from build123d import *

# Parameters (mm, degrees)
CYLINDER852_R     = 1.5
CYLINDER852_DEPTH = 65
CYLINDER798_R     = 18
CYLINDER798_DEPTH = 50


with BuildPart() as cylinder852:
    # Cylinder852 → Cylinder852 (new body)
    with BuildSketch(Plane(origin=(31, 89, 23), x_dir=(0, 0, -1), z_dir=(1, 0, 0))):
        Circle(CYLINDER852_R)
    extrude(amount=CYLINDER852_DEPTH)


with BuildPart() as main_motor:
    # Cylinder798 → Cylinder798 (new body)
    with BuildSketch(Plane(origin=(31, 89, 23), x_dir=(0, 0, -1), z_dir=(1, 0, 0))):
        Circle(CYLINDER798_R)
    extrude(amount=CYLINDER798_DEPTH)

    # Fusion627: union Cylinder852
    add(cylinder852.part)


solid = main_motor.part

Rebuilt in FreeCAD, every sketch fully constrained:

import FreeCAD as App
import Part
import Sketcher
from FreeCAD import Vector

doc = App.newDocument("Part")
body = doc.addObject("PartDesign::Body", "Body")

# Sketch on YZ plane
sketch1 = body.newObject("Sketcher::SketchObject", "Sketch")
sketch1.AttachmentSupport = (doc.getObject("YZ_Plane"), [""])
sketch1.MapMode = "FlatFace"
sketch1.AttachmentOffset = App.Placement(Vector(0, 0, 31), App.Rotation())
sketch1.addGeometry(Part.Circle(Vector(89, 23, 0), Vector(0, 0, 1), 1.5), False)
sketch1.addConstraint(Sketcher.Constraint("Diameter", 0, 3.0))
sketch1.addConstraint(Sketcher.Constraint("DistanceX", -1, 1, 0, 3, 89.0))
sketch1.addConstraint(Sketcher.Constraint("DistanceY", -1, 1, 0, 3, 23.0))
pad1 = body.newObject("PartDesign::Pad", "Pad")
pad1.Profile = sketch1
pad1.Length = 65
body2 = doc.addObject("PartDesign::Body", "Body001")

# Sketch on YZ plane
sketch2 = body2.newObject("Sketcher::SketchObject", "Sketch001")
sketch2.AttachmentSupport = (doc.getObject("YZ_Plane001"), [""])
sketch2.MapMode = "FlatFace"
sketch2.AttachmentOffset = App.Placement(Vector(0, 0, 31), App.Rotation())
sketch2.addGeometry(Part.Circle(Vector(89, 23, 0), Vector(0, 0, 1), 18), False)
sketch2.addConstraint(Sketcher.Constraint("Diameter", 0, 36.0))
sketch2.addConstraint(Sketcher.Constraint("DistanceX", -1, 1, 0, 3, 89.0))
sketch2.addConstraint(Sketcher.Constraint("DistanceY", -1, 1, 0, 3, 23.0))
pad2 = body2.newObject("PartDesign::Pad", "Pad001")
pad2.Profile = sketch2
pad2.Length = 50
doc.recompute()

boolean = body2.newObject("PartDesign::Boolean", "Boolean")
boolean.Type = "Fuse"
boolean.addObjects([body])

doc.recompute()
